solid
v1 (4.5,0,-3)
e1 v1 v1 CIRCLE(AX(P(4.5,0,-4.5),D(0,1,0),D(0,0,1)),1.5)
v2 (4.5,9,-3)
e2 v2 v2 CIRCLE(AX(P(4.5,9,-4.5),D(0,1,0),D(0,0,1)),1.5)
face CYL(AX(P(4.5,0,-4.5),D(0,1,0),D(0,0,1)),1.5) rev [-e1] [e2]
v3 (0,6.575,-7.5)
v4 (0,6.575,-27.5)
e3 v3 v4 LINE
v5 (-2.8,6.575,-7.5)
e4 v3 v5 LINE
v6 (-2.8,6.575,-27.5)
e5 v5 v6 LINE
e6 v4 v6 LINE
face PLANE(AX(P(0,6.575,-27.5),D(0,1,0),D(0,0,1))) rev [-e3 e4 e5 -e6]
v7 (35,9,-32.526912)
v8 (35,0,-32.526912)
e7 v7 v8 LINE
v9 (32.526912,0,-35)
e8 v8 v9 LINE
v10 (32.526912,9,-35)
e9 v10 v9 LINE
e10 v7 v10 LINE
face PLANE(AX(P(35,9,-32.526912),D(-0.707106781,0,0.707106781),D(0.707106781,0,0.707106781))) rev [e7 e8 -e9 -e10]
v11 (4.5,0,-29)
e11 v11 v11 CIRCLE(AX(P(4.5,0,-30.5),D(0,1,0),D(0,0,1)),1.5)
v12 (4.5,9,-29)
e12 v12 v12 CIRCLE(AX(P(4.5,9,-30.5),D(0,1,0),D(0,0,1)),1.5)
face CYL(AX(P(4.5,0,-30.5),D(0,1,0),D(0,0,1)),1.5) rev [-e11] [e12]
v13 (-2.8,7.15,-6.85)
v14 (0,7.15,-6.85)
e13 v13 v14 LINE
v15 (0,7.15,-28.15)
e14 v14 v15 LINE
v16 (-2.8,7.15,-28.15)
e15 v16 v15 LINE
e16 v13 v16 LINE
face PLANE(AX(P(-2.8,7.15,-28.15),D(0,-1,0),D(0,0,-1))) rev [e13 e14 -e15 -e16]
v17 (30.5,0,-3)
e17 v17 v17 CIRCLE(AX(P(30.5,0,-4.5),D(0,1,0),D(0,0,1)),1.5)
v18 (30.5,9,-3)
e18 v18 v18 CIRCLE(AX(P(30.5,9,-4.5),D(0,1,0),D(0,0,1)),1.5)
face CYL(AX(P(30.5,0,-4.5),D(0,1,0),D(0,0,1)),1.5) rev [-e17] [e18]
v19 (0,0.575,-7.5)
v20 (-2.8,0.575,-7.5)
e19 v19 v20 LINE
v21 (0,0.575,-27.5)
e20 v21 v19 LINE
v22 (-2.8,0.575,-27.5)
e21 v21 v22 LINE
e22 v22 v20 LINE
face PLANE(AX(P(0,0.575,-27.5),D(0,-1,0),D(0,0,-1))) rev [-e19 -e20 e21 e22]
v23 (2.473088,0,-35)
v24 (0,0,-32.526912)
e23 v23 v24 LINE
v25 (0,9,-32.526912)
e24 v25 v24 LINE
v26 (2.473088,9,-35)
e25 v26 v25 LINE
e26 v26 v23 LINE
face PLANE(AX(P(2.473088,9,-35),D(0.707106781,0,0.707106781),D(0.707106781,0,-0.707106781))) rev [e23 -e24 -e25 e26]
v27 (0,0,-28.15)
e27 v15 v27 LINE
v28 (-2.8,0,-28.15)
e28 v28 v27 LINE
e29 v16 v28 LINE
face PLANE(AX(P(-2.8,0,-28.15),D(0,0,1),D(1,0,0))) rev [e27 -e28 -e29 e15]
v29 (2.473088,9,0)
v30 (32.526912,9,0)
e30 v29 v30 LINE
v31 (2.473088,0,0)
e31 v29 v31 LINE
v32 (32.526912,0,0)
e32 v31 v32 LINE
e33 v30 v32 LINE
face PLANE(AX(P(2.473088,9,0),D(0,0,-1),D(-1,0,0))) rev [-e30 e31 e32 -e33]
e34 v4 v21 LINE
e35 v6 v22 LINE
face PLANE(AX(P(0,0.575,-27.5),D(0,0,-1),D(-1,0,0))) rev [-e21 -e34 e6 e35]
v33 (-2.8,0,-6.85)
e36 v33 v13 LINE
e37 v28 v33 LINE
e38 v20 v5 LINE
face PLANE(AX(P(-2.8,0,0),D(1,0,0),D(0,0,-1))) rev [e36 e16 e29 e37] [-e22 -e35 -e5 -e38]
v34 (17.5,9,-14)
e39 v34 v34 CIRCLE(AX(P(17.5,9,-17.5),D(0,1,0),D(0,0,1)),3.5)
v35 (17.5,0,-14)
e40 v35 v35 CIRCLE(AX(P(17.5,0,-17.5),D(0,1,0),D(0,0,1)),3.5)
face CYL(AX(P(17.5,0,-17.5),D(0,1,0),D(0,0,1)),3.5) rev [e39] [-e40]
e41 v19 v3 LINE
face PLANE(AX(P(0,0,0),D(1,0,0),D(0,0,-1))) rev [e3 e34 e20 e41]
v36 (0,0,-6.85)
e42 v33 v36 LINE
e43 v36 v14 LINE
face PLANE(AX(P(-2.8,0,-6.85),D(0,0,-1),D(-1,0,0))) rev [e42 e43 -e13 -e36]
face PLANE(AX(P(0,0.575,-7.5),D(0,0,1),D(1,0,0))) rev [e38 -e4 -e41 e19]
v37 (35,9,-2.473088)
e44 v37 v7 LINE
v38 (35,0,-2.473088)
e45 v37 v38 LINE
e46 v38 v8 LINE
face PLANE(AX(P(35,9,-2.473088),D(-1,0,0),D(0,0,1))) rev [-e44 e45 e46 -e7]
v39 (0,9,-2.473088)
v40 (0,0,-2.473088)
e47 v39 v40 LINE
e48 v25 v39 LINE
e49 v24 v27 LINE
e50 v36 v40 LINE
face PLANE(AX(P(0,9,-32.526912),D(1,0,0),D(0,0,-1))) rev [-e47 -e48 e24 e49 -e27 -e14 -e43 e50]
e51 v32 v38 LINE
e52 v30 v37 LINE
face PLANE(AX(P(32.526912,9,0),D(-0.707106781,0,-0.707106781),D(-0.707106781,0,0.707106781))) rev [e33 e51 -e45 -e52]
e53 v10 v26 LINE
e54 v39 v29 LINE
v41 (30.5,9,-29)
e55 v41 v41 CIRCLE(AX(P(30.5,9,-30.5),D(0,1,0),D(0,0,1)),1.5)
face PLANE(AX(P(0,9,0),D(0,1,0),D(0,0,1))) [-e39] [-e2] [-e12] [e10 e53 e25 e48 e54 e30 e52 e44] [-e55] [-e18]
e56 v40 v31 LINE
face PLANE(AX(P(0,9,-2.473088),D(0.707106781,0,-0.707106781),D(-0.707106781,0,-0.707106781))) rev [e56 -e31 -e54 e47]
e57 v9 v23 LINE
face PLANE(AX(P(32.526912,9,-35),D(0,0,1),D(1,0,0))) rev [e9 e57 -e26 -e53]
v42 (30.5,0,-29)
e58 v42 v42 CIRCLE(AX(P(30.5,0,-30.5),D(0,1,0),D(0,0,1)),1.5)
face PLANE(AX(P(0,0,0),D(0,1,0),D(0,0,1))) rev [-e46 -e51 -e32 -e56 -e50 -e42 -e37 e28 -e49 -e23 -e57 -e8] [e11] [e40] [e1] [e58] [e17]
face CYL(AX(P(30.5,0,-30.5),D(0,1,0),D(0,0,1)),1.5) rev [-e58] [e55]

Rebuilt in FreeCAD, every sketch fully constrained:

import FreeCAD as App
import Part
import Sketcher
from FreeCAD import Vector


def add_polygon(sketch, points):
    """Adds a closed chain of lines whose ends are joined by coincident constraints."""
    first, n = sketch.GeometryCount, len(points)
    for a, b in zip(points, points[1:] + points[:1]):
        sketch.addGeometry(Part.LineSegment(App.Vector(*a, 0), App.Vector(*b, 0)), False)
    for i in range(n):
        sketch.addConstraint(Sketcher.Constraint("Coincident", first + i, 2, first + (i + 1) % n, 1))

doc = App.newDocument("Part")
params = doc.addObject("Spreadsheet::Sheet", "Params")
for row, (alias, value) in enumerate([
    ("pad1_length", "9 mm"),
    ("sketch2_diameter", "7 mm"),
    ("sketch3_diameter", "3 mm"),
    ("sketch4_height", "21.3 mm"),
    ("sketch4_width", "7.15 mm"),
    ("pad2_length", "2.8 mm"),
    ("sketch5_width", "6 mm"),
    ("sketch5_height", "20 mm"),
    ("pocket3_length", "2.8 mm"),
], start=1):
    params.set(f"A{row}", alias)
    params.set(f"B{row}", "=" + value)
    params.setAlias(f"B{row}", alias)

body = doc.addObject("PartDesign::Body", "Body")

sketch1 = body.newObject("Sketcher::SketchObject", "Sketch")
sketch1.AttachmentSupport = (doc.getObject("XZ_Plane"), [""])
sketch1.MapMode = "FlatFace"
add_polygon(sketch1, [(0, -2.473088), (2.473088, 0), (32.526912, 0), (35, -2.473088), (35, -32.526912), (32.526912, -35), (2.473088, -35), (0, -32.526912)])
sketch1.addConstraint([
    Sketcher.Constraint("Horizontal", 1),
    Sketcher.Constraint("Vertical", 3),
    Sketcher.Constraint("Horizontal", 5),
    Sketcher.Constraint("Vertical", 7),
    Sketcher.Constraint("PointOnObject", 0, 2, -1),
    Sketcher.Constraint("PointOnObject", 6, 2, -2),
    Sketcher.Constraint("Perpendicular", 0, 2),
    Sketcher.Constraint("Perpendicular", 2, 4),
    Sketcher.Constraint("Perpendicular", 4, 6),
    Sketcher.Constraint("Horizontal", 3, 2, 6, 2),
    Sketcher.Constraint("Horizontal", 2, 2, 7, 2),
    Sketcher.Constraint("Vertical", 1, 2, 4, 2),
    Sketcher.Constraint("Vertical", 0, 2, 5, 2),
    Sketcher.Constraint("Equal", 5, 3),
    Sketcher.Constraint("DistanceX", -1, 1, 2, 2, 35.0),
    Sketcher.Constraint("DistanceX", 1, 1, 1, 2, 30.053824),
])
pad1 = body.newObject("PartDesign::Pad", "Pad")
pad1.Profile = sketch1
pad1.setExpression("Length", "Params.pad1_length")
pad1.Reversed = True

sketch2 = body.newObject("Sketcher::SketchObject", "Sketch001")
sketch2.AttachmentSupport = (doc.getObject("XZ_Plane"), [""])
sketch2.MapMode = "FlatFace"
sketch2.AttachmentOffset = App.Placement(Vector(0, 0, -9), App.Rotation())
sketch2.addGeometry(Part.Circle(Vector(17.5, -17.5, 0), Vector(0, 0, 1), 3.5), False)
sketch2.addConstraint([
    Sketcher.Constraint("Diameter", 0, 7.0),
    Sketcher.Constraint("DistanceX", -1, 1, 0, 3, 17.5),
    Sketcher.Constraint("DistanceY", 0, 3, -1, 1, 17.5),
])
sketch2.setExpression("Constraints[0]", "Params.sketch2_diameter")
pocket1 = body.newObject("PartDesign::Pocket", "Pocket")
pocket1.Profile = sketch2
pocket1.Type = "ThroughAll"
pocket1.Reversed = True

sketch3 = body.newObject("Sketcher::SketchObject", "Sketch002")
sketch3.AttachmentSupport = (doc.getObject("XZ_Plane"), [""])
sketch3.MapMode = "FlatFace"
sketch3.AttachmentOffset = App.Placement(Vector(0, 0, -9), App.Rotation())
sketch3.addGeometry([
    Part.Circle(Vector(4.5, -30.5, 0), Vector(0, 0, 1), 1.5),
    Part.Circle(Vector(30.5, -30.5, 0), Vector(0, 0, 1), 1.5),
    Part.Circle(Vector(30.5, -4.5, 0), Vector(0, 0, 1), 1.5),
    Part.Circle(Vector(4.5, -4.5, 0), Vector(0, 0, 1), 1.5),
], False)
sketch3.addConstraint([
    Sketcher.Constraint("Equal", 0, 1),
    Sketcher.Constraint("Equal", 1, 2),
    Sketcher.Constraint("Equal", 2, 3),
    Sketcher.Constraint("Horizontal", 0, 3, 1, 3),
    Sketcher.Constraint("Horizontal", 2, 3, 3, 3),
    Sketcher.Constraint("Vertical", 1, 3, 2, 3),
    Sketcher.Constraint("Vertical", 0, 3, 3, 3),
    Sketcher.Constraint("Diameter", 0, 3.0),
    Sketcher.Constraint("DistanceX", 0, 3, 1, 3, 26.0),
    Sketcher.Constraint("DistanceY", 1, 3, 2, 3, 26.0),
    Sketcher.Constraint("DistanceX", -1, 1, 0, 3, 4.5),
    Sketcher.Constraint("DistanceY", 0, 3, -1, 1, 30.5),
])
sketch3.setExpression("Constraints[7]", "Params.sketch3_diameter")
pocket2 = body.newObject("PartDesign::Pocket", "Pocket001")
pocket2.Profile = sketch3
pocket2.Type = "ThroughAll"
pocket2.Reversed = True

sketch4 = body.newObject("Sketcher::SketchObject", "Sketch003")
sketch4.AttachmentSupport = (doc.getObject("YZ_Plane"), [""])
sketch4.MapMode = "FlatFace"
add_polygon(sketch4, [(7.15, -28.15), (0, -28.15), (0, -6.85), (7.15, -6.85)])
sketch4.addConstraint([
    Sketcher.Constraint("Horizontal", 0),
    Sketcher.Constraint("Vertical", 1),
    Sketcher.Constraint("Horizontal", 2),
    Sketcher.Constraint("Vertical", 3),
    Sketcher.Constraint("PointOnObject", 0, 2, -2),
    Sketcher.Constraint("DistanceY", 1, 1, 1, 2, 21.3),
    Sketcher.Constraint("DistanceX", 0, 2, 0, 1, 7.15),
    Sketcher.Constraint("DistanceY", 0, 2, -1, 1, 28.15),
])
sketch4.setExpression("Constraints[9]", "Params.sketch4_height")
sketch4.setExpression("Constraints[10]", "Params.sketch4_width")
pad2 = body.newObject("PartDesign::Pad", "Pad001")
pad2.Profile = sketch4
pad2.setExpression("Length", "Params.pad2_length")
pad2.Reversed = True

sketch5 = body.newObject("Sketcher::SketchObject", "Sketch004")
sketch5.AttachmentSupport = (doc.getObject("YZ_Plane"), [""])
sketch5.MapMode = "FlatFace"
sketch5.AttachmentOffset = App.Placement(Vector(0, 0, -2.8), App.Rotation())
add_polygon(sketch5, [(6.575, -27.5), (0.575, -27.5), (0.575, -7.5), (6.575, -7.5)])
sketch5.addConstraint([
    Sketcher.Constraint("Horizontal", 0),
    Sketcher.Constraint("Vertical", 1),
    Sketcher.Constraint("Horizontal", 2),
    Sketcher.Constraint("Vertical", 3),
    Sketcher.Constraint("DistanceX", 0, 2, 0, 1, 6.0),
    Sketcher.Constraint("DistanceY", 1, 1, 1, 2, 20.0),
    Sketcher.Constraint("DistanceY", 0, 2, -1, 1, 27.5),
    Sketcher.Constraint("DistanceX", -1, 1, 0, 2, 0.575),
])
sketch5.setExpression("Constraints[8]", "Params.sketch5_width")
sketch5.setExpression("Constraints[9]", "Params.sketch5_height")
pocket3 = body.newObject("PartDesign::Pocket", "Pocket002")
pocket3.Profile = sketch5
pocket3.setExpression("Length", "Params.pocket3_length")
pocket3.Reversed = True

doc.recompute()
